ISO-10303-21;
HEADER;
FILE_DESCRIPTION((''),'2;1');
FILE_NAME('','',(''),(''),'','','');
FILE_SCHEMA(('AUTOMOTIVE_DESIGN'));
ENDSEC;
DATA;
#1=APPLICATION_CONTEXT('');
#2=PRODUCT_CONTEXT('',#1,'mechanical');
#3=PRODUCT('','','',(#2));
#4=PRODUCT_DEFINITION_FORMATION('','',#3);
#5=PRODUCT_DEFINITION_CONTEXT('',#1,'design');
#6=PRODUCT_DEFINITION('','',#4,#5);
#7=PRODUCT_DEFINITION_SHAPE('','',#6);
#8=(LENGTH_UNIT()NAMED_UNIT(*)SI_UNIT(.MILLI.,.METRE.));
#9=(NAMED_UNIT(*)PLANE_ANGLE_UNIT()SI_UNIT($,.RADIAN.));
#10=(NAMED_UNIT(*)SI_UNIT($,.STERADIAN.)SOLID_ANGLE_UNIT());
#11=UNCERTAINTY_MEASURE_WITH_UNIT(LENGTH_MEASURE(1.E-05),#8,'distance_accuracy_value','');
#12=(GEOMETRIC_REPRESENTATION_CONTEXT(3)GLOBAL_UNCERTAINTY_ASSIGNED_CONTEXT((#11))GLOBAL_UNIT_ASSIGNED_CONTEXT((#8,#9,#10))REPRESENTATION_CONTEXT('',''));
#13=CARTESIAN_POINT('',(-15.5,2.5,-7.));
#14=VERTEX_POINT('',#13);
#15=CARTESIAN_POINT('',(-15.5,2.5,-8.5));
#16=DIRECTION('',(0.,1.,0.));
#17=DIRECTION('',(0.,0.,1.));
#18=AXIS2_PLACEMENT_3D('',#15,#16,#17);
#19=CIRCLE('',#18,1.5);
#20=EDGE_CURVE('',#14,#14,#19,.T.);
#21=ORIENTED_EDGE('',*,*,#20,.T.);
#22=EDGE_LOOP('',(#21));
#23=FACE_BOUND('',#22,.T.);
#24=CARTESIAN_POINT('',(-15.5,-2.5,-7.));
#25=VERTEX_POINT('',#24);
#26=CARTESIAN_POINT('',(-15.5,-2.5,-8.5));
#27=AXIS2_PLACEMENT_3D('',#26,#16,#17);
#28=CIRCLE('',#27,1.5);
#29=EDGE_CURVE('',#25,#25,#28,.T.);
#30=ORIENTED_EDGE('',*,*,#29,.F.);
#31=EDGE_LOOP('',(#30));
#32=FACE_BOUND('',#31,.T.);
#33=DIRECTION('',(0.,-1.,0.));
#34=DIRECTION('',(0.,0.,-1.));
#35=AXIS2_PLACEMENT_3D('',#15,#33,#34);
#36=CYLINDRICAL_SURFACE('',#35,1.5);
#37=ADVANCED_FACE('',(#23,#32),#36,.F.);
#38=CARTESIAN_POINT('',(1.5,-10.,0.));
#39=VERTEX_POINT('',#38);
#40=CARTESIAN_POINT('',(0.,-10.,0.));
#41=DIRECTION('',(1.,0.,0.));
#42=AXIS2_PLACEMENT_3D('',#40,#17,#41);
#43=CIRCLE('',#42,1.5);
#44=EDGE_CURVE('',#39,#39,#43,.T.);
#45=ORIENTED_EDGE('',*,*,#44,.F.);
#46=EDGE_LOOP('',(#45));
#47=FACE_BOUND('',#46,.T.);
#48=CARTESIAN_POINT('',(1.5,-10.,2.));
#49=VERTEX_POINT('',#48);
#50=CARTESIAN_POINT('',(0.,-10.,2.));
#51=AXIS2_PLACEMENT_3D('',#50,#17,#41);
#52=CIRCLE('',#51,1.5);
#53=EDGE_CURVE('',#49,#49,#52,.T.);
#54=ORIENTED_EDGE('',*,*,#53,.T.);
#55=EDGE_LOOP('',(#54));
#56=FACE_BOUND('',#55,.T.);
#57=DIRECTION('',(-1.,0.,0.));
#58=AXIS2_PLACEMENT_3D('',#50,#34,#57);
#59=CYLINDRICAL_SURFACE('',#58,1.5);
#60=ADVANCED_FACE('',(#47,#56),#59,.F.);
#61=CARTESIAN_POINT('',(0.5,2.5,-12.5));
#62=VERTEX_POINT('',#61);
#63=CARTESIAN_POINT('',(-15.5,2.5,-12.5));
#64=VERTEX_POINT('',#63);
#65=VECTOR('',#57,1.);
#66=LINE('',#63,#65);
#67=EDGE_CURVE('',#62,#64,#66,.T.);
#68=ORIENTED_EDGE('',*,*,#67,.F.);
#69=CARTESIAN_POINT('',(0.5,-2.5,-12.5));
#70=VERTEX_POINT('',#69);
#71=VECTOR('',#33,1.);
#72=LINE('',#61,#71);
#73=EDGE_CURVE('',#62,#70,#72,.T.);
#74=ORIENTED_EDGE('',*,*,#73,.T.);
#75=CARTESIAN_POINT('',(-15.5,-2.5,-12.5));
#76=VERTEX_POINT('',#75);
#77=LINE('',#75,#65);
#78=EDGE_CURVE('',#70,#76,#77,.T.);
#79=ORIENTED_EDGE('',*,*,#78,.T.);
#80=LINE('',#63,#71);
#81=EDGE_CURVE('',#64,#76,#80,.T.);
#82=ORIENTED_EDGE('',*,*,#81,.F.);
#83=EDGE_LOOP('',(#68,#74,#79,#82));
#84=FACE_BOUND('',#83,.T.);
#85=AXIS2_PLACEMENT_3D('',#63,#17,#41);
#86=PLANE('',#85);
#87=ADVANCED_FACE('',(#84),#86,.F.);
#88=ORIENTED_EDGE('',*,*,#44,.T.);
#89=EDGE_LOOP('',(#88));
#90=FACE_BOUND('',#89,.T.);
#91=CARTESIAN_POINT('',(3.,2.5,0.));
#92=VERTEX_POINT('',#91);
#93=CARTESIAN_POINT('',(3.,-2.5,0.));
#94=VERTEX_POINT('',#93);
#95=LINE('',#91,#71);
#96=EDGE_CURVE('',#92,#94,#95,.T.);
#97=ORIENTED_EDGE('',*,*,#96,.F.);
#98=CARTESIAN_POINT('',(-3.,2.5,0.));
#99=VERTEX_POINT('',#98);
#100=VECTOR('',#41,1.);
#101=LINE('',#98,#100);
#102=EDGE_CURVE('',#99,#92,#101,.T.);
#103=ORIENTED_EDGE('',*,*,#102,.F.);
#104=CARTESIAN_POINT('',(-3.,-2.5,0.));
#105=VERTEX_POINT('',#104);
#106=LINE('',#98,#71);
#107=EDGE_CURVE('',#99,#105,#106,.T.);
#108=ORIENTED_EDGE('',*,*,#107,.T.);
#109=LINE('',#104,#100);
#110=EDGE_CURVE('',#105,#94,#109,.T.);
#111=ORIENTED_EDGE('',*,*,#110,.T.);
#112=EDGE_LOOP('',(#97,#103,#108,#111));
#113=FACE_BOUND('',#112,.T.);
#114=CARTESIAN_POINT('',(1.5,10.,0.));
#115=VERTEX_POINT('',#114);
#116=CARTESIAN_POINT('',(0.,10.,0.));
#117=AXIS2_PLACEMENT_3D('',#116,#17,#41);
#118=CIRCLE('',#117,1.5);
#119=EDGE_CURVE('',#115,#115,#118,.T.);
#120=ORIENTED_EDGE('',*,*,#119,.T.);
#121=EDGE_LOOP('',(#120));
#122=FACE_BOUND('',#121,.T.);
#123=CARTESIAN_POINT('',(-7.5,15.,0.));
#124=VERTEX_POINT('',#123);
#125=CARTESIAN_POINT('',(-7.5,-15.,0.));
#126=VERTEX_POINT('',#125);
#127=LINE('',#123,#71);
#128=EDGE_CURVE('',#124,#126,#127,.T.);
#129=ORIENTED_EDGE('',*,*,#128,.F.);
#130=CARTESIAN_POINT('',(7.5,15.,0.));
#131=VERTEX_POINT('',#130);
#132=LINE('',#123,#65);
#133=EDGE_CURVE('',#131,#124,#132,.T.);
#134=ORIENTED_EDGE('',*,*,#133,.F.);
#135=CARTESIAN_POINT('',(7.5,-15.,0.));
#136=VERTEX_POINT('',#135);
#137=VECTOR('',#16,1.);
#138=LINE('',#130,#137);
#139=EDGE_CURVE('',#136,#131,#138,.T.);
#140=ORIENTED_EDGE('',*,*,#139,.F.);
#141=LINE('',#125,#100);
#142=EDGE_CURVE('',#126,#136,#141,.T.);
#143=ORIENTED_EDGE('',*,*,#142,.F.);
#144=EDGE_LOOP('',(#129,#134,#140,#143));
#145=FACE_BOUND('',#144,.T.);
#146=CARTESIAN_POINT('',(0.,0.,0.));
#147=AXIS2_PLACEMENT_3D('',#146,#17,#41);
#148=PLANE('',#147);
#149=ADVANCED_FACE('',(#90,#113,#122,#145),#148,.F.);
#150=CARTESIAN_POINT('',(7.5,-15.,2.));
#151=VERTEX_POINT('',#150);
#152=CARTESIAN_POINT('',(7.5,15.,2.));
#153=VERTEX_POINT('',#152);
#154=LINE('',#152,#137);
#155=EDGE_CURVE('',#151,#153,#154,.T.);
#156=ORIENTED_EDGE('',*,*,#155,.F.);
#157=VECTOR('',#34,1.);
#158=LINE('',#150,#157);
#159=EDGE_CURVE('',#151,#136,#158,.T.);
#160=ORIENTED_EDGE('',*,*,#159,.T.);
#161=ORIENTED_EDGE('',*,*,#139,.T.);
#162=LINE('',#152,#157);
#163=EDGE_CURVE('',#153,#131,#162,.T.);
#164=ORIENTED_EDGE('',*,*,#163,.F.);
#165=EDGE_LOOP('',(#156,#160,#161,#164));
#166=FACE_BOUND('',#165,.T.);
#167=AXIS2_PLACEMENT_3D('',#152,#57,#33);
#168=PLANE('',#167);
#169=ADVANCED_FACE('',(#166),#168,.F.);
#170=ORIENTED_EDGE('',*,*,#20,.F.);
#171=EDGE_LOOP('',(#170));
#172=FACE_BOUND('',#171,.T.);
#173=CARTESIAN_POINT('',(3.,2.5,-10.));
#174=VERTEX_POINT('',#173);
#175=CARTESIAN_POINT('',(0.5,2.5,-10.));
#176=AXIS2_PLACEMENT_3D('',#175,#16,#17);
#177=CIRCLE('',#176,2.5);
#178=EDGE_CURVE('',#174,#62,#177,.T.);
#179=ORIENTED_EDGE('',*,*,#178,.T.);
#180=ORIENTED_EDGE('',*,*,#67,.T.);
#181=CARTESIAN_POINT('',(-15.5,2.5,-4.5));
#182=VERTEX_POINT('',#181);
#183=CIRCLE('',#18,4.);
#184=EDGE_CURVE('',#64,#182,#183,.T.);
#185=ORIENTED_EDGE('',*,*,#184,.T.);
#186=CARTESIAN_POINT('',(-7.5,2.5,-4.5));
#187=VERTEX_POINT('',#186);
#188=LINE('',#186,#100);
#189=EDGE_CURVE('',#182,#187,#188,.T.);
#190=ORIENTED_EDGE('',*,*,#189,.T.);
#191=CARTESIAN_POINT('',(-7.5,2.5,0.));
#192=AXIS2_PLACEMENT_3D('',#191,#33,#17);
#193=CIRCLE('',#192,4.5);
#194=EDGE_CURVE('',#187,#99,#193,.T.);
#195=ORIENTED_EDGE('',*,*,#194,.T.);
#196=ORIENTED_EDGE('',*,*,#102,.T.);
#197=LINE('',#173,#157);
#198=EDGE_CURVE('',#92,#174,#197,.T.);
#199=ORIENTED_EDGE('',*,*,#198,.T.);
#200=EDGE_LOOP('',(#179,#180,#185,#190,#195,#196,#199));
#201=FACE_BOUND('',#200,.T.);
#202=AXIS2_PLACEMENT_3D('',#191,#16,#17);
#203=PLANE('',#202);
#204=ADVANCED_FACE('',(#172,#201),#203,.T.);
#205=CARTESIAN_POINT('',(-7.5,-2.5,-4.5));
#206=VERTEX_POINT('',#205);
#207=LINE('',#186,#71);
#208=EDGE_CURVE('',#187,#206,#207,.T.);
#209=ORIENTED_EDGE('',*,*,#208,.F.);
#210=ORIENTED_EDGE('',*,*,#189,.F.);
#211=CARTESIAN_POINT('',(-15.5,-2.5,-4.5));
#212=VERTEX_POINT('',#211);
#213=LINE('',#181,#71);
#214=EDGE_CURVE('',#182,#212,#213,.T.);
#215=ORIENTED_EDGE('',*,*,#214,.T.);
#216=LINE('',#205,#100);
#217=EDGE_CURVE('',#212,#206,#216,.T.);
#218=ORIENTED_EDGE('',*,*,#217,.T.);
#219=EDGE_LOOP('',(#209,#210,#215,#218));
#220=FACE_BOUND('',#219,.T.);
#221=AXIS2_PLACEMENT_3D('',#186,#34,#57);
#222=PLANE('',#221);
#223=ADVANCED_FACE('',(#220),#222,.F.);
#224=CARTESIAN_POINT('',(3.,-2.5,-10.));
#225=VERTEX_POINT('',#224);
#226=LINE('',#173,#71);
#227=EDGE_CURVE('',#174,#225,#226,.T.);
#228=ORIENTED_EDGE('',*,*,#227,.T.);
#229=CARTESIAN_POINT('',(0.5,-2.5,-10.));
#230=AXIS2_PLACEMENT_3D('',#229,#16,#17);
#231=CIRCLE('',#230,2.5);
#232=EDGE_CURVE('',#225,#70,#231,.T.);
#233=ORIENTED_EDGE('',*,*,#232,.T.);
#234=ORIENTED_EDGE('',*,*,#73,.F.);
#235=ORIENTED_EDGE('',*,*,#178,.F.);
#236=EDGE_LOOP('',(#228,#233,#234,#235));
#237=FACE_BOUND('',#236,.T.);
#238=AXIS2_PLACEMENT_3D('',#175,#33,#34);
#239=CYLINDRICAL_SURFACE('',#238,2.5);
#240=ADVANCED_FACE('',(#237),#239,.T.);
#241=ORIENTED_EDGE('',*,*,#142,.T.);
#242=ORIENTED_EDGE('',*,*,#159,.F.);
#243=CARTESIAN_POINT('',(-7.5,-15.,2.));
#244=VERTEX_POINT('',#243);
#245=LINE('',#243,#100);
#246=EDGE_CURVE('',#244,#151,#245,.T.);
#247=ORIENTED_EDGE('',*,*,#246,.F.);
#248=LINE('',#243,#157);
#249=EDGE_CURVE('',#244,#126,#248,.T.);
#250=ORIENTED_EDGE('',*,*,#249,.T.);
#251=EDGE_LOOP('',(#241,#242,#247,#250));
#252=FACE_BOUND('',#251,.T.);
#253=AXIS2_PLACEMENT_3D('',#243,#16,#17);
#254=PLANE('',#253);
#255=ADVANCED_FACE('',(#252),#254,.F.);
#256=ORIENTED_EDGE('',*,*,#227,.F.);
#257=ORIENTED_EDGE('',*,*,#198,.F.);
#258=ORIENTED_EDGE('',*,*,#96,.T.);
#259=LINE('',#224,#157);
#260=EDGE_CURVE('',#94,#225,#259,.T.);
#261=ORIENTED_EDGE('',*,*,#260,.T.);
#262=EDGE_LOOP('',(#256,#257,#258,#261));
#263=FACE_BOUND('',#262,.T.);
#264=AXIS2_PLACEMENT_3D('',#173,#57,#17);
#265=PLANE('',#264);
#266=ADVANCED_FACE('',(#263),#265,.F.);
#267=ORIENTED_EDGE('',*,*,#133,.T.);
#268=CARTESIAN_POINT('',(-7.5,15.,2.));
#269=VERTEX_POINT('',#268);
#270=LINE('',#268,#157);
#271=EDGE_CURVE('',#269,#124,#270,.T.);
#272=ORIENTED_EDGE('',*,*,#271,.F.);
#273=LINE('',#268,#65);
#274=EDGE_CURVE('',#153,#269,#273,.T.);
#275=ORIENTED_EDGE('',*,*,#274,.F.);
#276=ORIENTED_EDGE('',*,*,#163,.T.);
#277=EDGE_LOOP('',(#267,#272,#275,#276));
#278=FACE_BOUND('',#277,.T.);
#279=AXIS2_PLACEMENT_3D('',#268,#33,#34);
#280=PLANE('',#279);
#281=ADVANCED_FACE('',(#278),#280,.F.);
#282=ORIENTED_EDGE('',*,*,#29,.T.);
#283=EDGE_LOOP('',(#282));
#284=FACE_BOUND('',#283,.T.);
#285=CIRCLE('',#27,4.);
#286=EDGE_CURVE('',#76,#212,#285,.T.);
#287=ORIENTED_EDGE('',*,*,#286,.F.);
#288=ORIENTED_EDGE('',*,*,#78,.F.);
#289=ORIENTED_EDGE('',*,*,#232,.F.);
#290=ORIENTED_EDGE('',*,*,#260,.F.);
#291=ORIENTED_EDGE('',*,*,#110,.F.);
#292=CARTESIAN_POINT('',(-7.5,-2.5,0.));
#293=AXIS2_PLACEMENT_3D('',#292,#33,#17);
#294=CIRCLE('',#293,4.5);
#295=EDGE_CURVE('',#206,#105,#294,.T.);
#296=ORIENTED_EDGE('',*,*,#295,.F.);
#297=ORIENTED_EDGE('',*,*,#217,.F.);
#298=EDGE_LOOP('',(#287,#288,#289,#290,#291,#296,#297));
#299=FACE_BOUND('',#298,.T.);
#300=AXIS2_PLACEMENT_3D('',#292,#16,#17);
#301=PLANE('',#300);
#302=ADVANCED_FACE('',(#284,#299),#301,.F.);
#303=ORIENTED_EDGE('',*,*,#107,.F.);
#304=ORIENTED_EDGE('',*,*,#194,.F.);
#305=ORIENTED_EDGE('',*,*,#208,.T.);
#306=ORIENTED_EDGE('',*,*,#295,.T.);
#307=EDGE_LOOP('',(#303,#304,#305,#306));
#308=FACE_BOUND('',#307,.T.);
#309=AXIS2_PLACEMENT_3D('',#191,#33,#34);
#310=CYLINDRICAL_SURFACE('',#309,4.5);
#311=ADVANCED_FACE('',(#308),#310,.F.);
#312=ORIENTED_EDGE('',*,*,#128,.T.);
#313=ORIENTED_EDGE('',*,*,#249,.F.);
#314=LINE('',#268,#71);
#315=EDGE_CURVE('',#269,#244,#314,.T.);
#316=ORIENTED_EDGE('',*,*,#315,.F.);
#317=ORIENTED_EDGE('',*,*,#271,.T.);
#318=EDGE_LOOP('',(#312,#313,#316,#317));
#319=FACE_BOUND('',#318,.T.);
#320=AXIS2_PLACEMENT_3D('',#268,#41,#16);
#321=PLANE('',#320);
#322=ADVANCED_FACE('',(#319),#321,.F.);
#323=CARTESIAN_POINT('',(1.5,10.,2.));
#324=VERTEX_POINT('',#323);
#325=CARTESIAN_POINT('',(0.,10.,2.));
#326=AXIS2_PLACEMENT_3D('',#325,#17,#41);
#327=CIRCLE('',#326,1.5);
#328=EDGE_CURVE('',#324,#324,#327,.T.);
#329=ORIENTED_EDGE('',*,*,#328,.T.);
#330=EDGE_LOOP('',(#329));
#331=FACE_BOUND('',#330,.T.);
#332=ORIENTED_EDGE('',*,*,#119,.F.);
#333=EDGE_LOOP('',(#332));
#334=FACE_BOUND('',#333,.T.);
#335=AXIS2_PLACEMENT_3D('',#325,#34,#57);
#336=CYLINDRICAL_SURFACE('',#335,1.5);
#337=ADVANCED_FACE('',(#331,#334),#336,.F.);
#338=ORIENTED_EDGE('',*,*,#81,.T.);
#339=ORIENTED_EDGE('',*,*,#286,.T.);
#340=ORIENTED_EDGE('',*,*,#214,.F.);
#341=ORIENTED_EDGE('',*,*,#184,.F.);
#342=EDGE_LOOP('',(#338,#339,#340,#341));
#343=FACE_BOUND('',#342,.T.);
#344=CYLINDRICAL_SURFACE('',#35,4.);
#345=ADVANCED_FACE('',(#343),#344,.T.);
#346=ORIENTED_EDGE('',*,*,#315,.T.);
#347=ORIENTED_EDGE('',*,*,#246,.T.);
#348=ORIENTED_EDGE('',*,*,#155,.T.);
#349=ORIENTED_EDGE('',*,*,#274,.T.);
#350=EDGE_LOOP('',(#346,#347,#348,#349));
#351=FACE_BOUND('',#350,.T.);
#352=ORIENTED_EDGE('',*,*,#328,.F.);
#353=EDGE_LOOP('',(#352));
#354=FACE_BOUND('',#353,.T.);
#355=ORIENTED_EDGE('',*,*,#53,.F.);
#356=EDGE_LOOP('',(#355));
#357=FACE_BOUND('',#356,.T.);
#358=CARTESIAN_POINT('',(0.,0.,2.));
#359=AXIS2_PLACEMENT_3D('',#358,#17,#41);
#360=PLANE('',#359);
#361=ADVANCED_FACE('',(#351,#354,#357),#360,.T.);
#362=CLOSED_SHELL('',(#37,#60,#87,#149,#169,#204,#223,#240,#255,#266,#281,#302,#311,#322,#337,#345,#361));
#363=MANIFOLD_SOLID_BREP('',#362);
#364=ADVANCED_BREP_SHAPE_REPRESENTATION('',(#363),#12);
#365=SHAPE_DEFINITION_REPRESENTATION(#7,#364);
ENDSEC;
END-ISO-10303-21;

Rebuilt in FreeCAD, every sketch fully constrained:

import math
import FreeCAD as App
import Part
import Sketcher

V = App.Vector


def add_polygon(sketch, points):
    """Adds a closed chain of lines whose ends are joined by coincident constraints."""
    first, n = sketch.GeometryCount, len(points)
    for a, b in zip(points, points[1:] + points[:1]):
        sketch.addGeometry(Part.LineSegment(App.Vector(*a, 0), App.Vector(*b, 0)), False)
    for i in range(n):
        sketch.addConstraint(Sketcher.Constraint("Coincident", first + i, 2, first + (i + 1) % n, 1))

doc = App.newDocument("Part")
body = doc.addObject("PartDesign::Body", "Body")

# Sketch on XY plane
sketch1 = body.newObject("Sketcher::SketchObject", "Sketch")
sketch1.AttachmentSupport = (doc.getObject("XY_Plane"), [""])
sketch1.MapMode = "FlatFace"
add_polygon(sketch1, [(-7.5, 15), (-7.5, -15), (7.5, -15), (7.5, 15)])  # lines 0-3
sketch1.addGeometry(Part.Circle(V(0, -10, 0), V(0, 0, 1), 1.5), False)  # 4
sketch1.addGeometry(Part.Circle(V(0, 10, 0), V(0, 0, 1), 1.5), False)  # 5
sketch1.addConstraint([
    Sketcher.Constraint("Vertical", 0),
    Sketcher.Constraint("Horizontal", 1),
    Sketcher.Constraint("Vertical", 2),
    Sketcher.Constraint("Horizontal", 3),
    Sketcher.Constraint("Equal", 4, 5),
    Sketcher.Constraint("Symmetric", 4, 3, 5, 3, -1, 1),
    Sketcher.Constraint("Symmetric", 0, 2, 2, 2, -1, 1),
    Sketcher.Constraint("PointOnObject", 4, 3, -2),
    Sketcher.Constraint("Diameter", 4, 3.0),
    Sketcher.Constraint("DistanceX", 1, 1, 1, 2, 15.0),
    Sketcher.Constraint("DistanceY", 0, 2, 0, 1, 30.0),
    Sketcher.Constraint("DistanceY", 4, 3, -1, 1, 10.0),
])
pad1 = body.newObject("PartDesign::Pad", "Pad")
pad1.Profile = sketch1
pad1.Length = 2

# Sketch on XZ plane
sketch2 = body.newObject("Sketcher::SketchObject", "Sketch001")
sketch2.AttachmentSupport = (doc.getObject("XZ_Plane"), [""])
sketch2.MapMode = "FlatFace"
sketch2.addGeometry([
    Part.LineSegment(V(-3, 0, 0), V(3, 0, 0)),  # 0
    Part.LineSegment(V(3, 0, 0), V(3, -10, 0)),  # 1
    Part.ArcOfCircle(Part.Circle(V(0.5, -10, 0), V(0, 0, 1), 2.5), math.radians(-90), math.radians(0)),  # 2
    Part.LineSegment(V(0.5, -12.5, 0), V(-15.5, -12.5, 0)),  # 3
    Part.ArcOfCircle(Part.Circle(V(-15.5, -8.5, 0), V(0, 0, 1), 4), math.radians(90), math.radians(270)),  # 4
    Part.LineSegment(V(-15.5, -4.5, 0), V(-7.5, -4.5, 0)),  # 5
    Part.ArcOfCircle(Part.Circle(V(-7.5, 0, 0), V(0, 0, 1), 4.5), math.radians(-90), math.radians(0)),  # 6
    Part.Circle(V(-15.5, -8.5, 0), V(0, 0, 1), 1.5),  # 7
], False)
sketch2.addConstraint([
    Sketcher.Constraint("Coincident", 0, 2, 1, 1),
    Sketcher.Constraint("Tangent", 1, 2, 2, 2),
    Sketcher.Constraint("Tangent", 2, 1, 3, 1),
    Sketcher.Constraint("Tangent", 3, 2, 4, 2),
    Sketcher.Constraint("Tangent", 4, 1, 5, 1),
    Sketcher.Constraint("Tangent", 5, 2, 6, 1),
    Sketcher.Constraint("Coincident", 6, 2, 0, 1),
    Sketcher.Constraint("Horizontal", 0),
    Sketcher.Constraint("Vertical", 1),
    Sketcher.Constraint("Horizontal", 3),
    Sketcher.Constraint("Horizontal", 5),
    Sketcher.Constraint("Coincident", 7, 3, 4, 3),
    Sketcher.Constraint("Symmetric", 0, 2, 6, 2, -1, 1),
    Sketcher.Constraint("PointOnObject", 6, 3, -1),
    Sketcher.Constraint("Diameter", 7, 3.0),
    Sketcher.Constraint("Radius", 4, 4.0),
    Sketcher.Constraint("Radius", 2, 2.5),
    Sketcher.Constraint("Radius", 6, 4.5),
    Sketcher.Constraint("DistanceX", 0, 1, 0, 2, 6.0),
    Sketcher.Constraint("DistanceX", 3, 2, 3, 1, 16.0),
])
pad2 = body.newObject("PartDesign::Pad", "Pad001")
pad2.Profile = sketch2
pad2.Length = 5
pad2.Midplane = True

doc.recompute()
